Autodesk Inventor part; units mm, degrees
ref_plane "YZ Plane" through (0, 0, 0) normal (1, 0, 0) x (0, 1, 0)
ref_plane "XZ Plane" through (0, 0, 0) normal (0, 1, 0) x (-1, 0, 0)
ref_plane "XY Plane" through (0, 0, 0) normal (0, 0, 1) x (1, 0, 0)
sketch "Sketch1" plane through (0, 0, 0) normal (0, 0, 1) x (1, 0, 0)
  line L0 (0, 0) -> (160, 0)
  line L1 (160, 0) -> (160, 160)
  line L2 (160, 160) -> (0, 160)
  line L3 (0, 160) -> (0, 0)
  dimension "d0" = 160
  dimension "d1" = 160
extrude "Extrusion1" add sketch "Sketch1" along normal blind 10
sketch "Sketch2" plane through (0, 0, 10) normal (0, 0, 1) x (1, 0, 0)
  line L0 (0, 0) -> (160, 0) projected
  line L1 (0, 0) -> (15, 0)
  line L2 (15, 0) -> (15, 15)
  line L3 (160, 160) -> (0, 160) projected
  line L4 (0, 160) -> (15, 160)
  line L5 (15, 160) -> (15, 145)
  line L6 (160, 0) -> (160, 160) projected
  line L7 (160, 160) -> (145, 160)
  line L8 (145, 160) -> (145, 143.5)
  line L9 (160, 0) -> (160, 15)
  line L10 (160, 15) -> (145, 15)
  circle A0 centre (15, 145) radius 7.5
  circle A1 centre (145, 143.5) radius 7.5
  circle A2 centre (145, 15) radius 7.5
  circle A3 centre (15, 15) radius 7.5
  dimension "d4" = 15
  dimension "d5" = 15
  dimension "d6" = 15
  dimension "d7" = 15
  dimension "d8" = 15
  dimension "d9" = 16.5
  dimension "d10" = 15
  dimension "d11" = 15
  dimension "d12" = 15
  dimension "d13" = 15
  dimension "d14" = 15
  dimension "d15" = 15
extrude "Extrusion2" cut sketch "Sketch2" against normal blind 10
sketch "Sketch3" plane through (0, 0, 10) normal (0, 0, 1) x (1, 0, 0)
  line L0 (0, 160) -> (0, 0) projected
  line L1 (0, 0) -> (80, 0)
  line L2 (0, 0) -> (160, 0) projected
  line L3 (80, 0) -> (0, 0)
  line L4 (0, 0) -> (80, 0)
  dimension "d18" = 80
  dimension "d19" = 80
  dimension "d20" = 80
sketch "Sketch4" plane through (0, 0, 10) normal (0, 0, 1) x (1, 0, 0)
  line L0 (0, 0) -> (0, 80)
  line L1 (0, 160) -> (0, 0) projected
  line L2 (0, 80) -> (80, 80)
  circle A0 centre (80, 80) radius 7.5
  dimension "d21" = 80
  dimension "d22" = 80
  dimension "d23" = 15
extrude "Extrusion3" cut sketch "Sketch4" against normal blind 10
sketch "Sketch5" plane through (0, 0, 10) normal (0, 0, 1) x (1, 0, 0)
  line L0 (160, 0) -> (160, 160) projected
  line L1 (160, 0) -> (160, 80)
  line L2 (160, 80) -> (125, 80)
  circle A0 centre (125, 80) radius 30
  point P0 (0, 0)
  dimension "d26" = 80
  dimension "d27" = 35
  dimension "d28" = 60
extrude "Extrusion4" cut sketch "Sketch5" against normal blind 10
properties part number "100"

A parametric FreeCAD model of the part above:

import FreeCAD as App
import Part
import Sketcher
from FreeCAD import Vector
Q = App.Units.Quantity

doc = App.newDocument("Part")
params = doc.addObject("Spreadsheet::Sheet", "Params")
for row, (alias, value) in enumerate([
    ("sketch1_width", "160 mm"),
    ("pad1_length", "10 mm"),
    ("sketch2_diameter", "15 mm"),
    ("pocket1_length", "10 mm"),
    ("sketch3_diameter", "15 mm"),
    ("pocket2_length", "10 mm"),
    ("sketch4_diameter", "60 mm"),
    ("pocket3_length", "10 mm"),
], start=1):
    params.set(f"A{row}", alias)
    params.set(f"B{row}", "=" + value)
    params.setAlias(f"B{row}", alias)

body = doc.addObject("PartDesign::Body", "Body")

sketch1 = body.newObject("Sketcher::SketchObject", "Sketch")
sketch1.AttachmentSupport = (doc.getObject("XY_Plane"), [""])
sketch1.MapMode = "FlatFace"
sketch1.addGeometry([
    Part.LineSegment(Vector(0, 160, 0), Vector(0, 0, 0)),
    Part.LineSegment(Vector(0, 0, 0), Vector(160, 0, 0)),
    Part.LineSegment(Vector(160, 0, 0), Vector(160, 160, 0)),
    Part.LineSegment(Vector(160, 160, 0), Vector(0, 160, 0)),
], False)
sketch1.addConstraint([
    Sketcher.Constraint("Coincident", 0, 2, 1, 1),
    Sketcher.Constraint("Coincident", 1, 2, 2, 1),
    Sketcher.Constraint("Coincident", 2, 2, 3, 1),
    Sketcher.Constraint("Coincident", 3, 2, 0, 1),
    Sketcher.Constraint("Vertical", 0),
    Sketcher.Constraint("Horizontal", 1),
    Sketcher.Constraint("Vertical", 2),
    Sketcher.Constraint("Horizontal", 3),
    Sketcher.Constraint("Coincident", 0, 2, -1, 1),
    Sketcher.Constraint("Equal", 3, 0),
    Sketcher.Constraint("DistanceX", 1, 1, 1, 2, Q("160 mm")),
])
sketch1.setExpression("Constraints[10]", "Params.sketch1_width")
pad1 = body.newObject("PartDesign::Pad", "Pad")
pad1.Profile = sketch1
pad1.setExpression("Length", "Params.pad1_length")

sketch2 = body.newObject("Sketcher::SketchObject", "Sketch001")
sketch2.AttachmentSupport = (doc.getObject("XY_Plane"), [""])
sketch2.MapMode = "FlatFace"
sketch2.AttachmentOffset = App.Placement(Vector(0, 0, 10), App.Rotation())
sketch2.addGeometry([
    Part.Circle(Vector(145, 15, 0), Vector(0, 0, 1), 8),
    Part.Circle(Vector(145, 144, 0), Vector(0, 0, 1), 8),
    Part.Circle(Vector(15, 145, 0), Vector(0, 0, 1), 8),
    Part.Circle(Vector(15, 15, 0), Vector(0, 0, 1), 8),
], False)
sketch2.addConstraint([
    Sketcher.Constraint("Equal", 0, 1),
    Sketcher.Constraint("Equal", 1, 2),
    Sketcher.Constraint("Equal", 2, 3),
    Sketcher.Constraint("Horizontal", 0, 3, 3, 3),
    Sketcher.Constraint("Vertical", 0, 3, 1, 3),
    Sketcher.Constraint("Vertical", 2, 3, 3, 3),
    Sketcher.Constraint("Diameter", 0, Q("15 mm")),
    Sketcher.Constraint("DistanceY", -1, 1, 0, 3, Q("15 mm")),
    Sketcher.Constraint("DistanceX", -1, 1, 2, 3, Q("15 mm")),
    Sketcher.Constraint("DistanceX", -1, 1, 0, 3, Q("145 mm")),
    Sketcher.Constraint("DistanceY", -1, 1, 2, 3, Q("145 mm")),
    Sketcher.Constraint("DistanceY", -1, 1, 1, 3, Q("143.5 mm")),
])
sketch2.setExpression("Constraints[6]", "Params.sketch2_diameter")
pocket1 = body.newObject("PartDesign::Pocket", "Pocket")
pocket1.Profile = sketch2
pocket1.setExpression("Length", "Params.pocket1_length")

sketch3 = body.newObject("Sketcher::SketchObject", "Sketch002")
sketch3.AttachmentSupport = (doc.getObject("XY_Plane"), [""])
sketch3.MapMode = "FlatFace"
sketch3.AttachmentOffset = App.Placement(Vector(0, 0, 10), App.Rotation())
sketch3.addGeometry(Part.Circle(Vector(80, 80, 0), Vector(0, 0, 1), 8), False)
sketch3.addConstraint([
    Sketcher.Constraint("Diameter", 0, Q("15 mm")),
    Sketcher.Constraint("DistanceX", -1, 1, 0, 3, Q("80 mm")),
    Sketcher.Constraint("DistanceY", -1, 1, 0, 3, Q("80 mm")),
])
sketch3.setExpression("Constraints[0]", "Params.sketch3_diameter")
pocket2 = body.newObject("PartDesign::Pocket", "Pocket001")
pocket2.Profile = sketch3
pocket2.setExpression("Length", "Params.pocket2_length")

sketch4 = body.newObject("Sketcher::SketchObject", "Sketch003")
sketch4.AttachmentSupport = (doc.getObject("XY_Plane"), [""])
sketch4.MapMode = "FlatFace"
sketch4.AttachmentOffset = App.Placement(Vector(0, 0, 10), App.Rotation())
sketch4.addGeometry(Part.Circle(Vector(125, 80, 0), Vector(0, 0, 1), 30), False)
sketch4.addConstraint([
    Sketcher.Constraint("Diameter", 0, Q("60 mm")),
    Sketcher.Constraint("DistanceY", -1, 1, 0, 3, Q("80 mm")),
    Sketcher.Constraint("DistanceX", -1, 1, 0, 3, Q("125 mm")),
])
sketch4.setExpression("Constraints[0]", "Params.sketch4_diameter")
pocket3 = body.newObject("PartDesign::Pocket", "Pocket002")
pocket3.Profile = sketch4
pocket3.setExpression("Length", "Params.pocket3_length")

doc.recompute()
